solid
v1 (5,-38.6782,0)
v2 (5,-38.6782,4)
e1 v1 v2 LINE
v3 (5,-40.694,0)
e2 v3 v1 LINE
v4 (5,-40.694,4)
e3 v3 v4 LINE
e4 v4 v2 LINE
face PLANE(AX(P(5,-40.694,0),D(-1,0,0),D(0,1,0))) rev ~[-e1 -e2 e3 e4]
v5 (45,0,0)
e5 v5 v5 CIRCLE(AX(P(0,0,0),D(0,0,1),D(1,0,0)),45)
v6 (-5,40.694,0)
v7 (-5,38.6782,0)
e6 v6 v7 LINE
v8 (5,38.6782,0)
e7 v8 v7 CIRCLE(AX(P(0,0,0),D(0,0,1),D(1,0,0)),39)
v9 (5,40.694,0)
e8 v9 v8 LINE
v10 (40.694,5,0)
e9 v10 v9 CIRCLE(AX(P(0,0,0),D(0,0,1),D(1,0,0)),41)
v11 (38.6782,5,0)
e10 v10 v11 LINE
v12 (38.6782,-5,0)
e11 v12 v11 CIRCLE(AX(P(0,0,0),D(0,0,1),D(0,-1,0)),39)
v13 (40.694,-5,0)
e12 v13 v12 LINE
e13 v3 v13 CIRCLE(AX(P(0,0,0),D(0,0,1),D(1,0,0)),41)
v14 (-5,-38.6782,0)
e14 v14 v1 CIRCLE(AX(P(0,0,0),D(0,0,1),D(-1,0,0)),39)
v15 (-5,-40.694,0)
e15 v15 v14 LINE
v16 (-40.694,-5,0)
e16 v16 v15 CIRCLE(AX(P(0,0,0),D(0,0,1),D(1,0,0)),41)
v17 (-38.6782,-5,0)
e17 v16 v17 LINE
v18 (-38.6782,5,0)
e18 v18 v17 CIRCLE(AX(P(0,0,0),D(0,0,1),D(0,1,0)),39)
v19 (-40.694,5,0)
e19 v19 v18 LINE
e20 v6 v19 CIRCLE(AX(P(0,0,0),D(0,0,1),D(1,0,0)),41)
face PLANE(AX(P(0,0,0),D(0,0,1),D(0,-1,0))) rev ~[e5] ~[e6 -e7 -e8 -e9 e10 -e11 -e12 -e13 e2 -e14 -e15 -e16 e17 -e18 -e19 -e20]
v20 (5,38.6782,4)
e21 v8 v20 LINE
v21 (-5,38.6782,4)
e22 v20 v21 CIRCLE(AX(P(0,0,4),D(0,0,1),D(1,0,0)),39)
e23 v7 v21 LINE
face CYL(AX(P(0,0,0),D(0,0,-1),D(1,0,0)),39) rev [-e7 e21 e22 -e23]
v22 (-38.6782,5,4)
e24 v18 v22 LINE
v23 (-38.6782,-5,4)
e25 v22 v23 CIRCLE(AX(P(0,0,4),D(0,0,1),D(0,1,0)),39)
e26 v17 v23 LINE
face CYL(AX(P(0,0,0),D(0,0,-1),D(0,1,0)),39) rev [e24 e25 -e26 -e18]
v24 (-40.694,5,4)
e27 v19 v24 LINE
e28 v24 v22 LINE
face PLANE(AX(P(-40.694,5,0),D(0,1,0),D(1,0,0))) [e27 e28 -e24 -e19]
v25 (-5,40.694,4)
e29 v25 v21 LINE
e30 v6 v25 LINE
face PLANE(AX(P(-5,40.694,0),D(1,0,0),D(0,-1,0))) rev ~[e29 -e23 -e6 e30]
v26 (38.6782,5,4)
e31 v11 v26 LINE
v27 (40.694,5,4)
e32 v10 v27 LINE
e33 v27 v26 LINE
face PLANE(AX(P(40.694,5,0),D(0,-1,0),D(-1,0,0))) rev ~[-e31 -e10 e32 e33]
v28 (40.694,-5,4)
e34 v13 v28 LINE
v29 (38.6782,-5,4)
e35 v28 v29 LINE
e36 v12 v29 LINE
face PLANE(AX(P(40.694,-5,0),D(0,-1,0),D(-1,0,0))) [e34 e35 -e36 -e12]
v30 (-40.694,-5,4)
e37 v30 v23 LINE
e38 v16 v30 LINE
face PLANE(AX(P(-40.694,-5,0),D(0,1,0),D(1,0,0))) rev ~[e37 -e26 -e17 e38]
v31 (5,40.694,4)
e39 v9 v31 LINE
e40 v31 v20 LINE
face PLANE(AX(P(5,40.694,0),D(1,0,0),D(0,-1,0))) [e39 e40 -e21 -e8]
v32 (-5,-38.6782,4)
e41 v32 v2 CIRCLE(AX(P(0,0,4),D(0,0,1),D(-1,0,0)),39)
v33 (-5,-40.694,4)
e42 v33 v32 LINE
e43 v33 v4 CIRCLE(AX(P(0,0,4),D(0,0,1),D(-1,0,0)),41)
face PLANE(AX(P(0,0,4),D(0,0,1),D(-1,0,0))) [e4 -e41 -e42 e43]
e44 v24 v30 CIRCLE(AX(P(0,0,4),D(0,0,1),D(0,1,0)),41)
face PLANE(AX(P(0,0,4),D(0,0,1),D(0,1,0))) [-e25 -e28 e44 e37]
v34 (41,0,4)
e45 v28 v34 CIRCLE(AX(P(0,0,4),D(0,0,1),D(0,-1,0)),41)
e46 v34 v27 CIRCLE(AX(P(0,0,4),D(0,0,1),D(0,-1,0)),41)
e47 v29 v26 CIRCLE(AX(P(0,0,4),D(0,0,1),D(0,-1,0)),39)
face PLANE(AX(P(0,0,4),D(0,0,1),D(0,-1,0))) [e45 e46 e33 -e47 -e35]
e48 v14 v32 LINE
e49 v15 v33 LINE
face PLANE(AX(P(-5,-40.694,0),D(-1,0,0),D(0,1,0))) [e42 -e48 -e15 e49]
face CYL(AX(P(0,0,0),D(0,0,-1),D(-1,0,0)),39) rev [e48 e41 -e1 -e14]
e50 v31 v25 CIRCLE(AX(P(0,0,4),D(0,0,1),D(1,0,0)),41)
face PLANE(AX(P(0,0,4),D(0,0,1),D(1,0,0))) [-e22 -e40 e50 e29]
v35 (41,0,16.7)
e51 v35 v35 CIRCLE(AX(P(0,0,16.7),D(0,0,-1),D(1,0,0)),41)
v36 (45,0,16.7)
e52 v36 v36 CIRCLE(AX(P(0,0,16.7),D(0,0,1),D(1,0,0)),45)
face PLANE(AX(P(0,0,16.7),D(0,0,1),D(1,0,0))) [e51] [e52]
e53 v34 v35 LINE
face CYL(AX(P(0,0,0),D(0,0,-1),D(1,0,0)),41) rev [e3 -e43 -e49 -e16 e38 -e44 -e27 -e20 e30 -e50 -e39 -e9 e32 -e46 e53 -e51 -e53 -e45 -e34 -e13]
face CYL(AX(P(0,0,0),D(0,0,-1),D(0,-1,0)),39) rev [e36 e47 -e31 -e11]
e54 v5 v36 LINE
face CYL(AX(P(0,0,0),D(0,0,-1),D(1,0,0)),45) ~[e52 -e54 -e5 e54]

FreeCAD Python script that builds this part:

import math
import FreeCAD as App
import Part
import Sketcher
from FreeCAD import Vector

doc = App.newDocument("Part")
body = doc.addObject("PartDesign::Body", "Body")

# Sketch on XY plane
sketch1 = doc.addObject("Sketcher::SketchObject", "Sketch")
body.addObject(sketch1)
sketch1.AttachmentSupport = (doc.XY_Plane, [""])
sketch1.MapMode = "FlatFace"
sketch1.addGeometry([
    Part.Circle(Vector(0, 0, 0), Vector(0, 0, 1), 45),
    Part.Circle(Vector(0, 0, 0), Vector(0, 0, 1), 41),
], False)
sketch1.addConstraint([
    Sketcher.Constraint("Coincident", 0, 3, -1, 1),
    Sketcher.Constraint("Coincident", 1, 3, -1, 1),
    Sketcher.Constraint("Diameter", 0, 90.0),
    Sketcher.Constraint("Diameter", 1, 82.0),
])
pad1 = doc.addObject("PartDesign::Pad", "Pad")
body.addObject(pad1)
pad1.Profile = sketch1
pad1.Length = 16.7

# Sketch on XY plane
sketch2 = doc.addObject("Sketcher::SketchObject", "Sketch001")
body.addObject(sketch2)
sketch2.AttachmentSupport = (doc.XY_Plane, [""])
sketch2.MapMode = "FlatFace"
sketch2.addGeometry([
    Part.LineSegment(Vector(5, 38.6782, 0), Vector(5, 40.694, 0)),
    Part.ArcOfCircle(Part.Circle(Vector(0, 0, 0), Vector(0, 0, 1), 41), math.radians(82.995277), math.radians(97.004723)),
    Part.LineSegment(Vector(-5, 40.694, 0), Vector(-5, 38.6782, 0)),
    Part.ArcOfCircle(Part.Circle(Vector(0, 0, 0), Vector(0, 0, 1), 39), math.radians(82.634122), math.radians(97.365878)),
], False)
sketch2.addConstraint([
    Sketcher.Constraint("Coincident", 0, 2, 1, 1),
    Sketcher.Constraint("Coincident", 1, 2, 2, 1),
    Sketcher.Constraint("Coincident", 2, 2, 3, 2),
    Sketcher.Constraint("Coincident", 3, 1, 0, 1),
    Sketcher.Constraint("Vertical", 0),
    Sketcher.Constraint("Vertical", 2),
    Sketcher.Constraint("Coincident", 1, 3, -1, 1),
    Sketcher.Constraint("Coincident", 3, 3, -1, 1),
    Sketcher.Constraint("Horizontal", 0, 2, 1, 2),
    Sketcher.Constraint("Radius", 1, 41.0),
    Sketcher.Constraint("Radius", 3, 39.0),
    Sketcher.Constraint("DistanceX", -1, 1, 0, 2, 5.0),
])
pad2 = doc.addObject("PartDesign::Pad", "Pad001")
body.addObject(pad2)
pad2.Profile = sketch2
pad2.Length = 4
doc.recompute()

polarpattern = doc.addObject("PartDesign::PolarPattern", "PolarPattern")
body.addObject(polarpattern)
polarpattern.Originals = [pad2]
polarpattern.Axis = (doc.Z_Axis, [""])
polarpattern.Angle = 360
polarpattern.Occurrences = 4
body.Tip = polarpattern

doc.recompute()
